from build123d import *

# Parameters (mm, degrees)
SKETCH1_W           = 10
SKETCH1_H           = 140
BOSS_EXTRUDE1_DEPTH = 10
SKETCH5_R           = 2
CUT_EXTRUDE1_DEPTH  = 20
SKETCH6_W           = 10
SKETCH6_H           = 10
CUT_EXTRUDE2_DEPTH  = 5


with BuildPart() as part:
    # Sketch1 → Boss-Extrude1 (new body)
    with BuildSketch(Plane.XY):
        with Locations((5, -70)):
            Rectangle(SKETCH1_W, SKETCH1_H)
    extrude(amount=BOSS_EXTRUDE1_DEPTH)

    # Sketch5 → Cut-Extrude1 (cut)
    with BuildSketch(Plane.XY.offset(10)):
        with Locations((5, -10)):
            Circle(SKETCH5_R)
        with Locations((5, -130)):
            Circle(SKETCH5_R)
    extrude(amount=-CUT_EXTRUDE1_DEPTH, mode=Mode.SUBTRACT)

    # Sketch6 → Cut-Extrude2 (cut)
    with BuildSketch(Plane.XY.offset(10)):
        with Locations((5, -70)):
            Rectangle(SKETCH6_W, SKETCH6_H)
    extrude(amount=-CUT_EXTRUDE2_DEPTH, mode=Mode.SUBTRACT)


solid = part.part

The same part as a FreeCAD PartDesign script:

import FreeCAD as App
import Part
import Sketcher

V = App.Vector
Q = App.Units.Quantity

doc = App.newDocument("Part")
body = doc.addObject("PartDesign::Body", "Body")

sketch1 = body.newObject("Sketcher::SketchObject", "Sketch")
sketch1.AttachmentSupport = (doc.getObject("XY_Plane"), [""])
sketch1.MapMode = "FlatFace"
sketch1.addGeometry([
    Part.LineSegment(V(0, 0, 0), V(0, -140, 0)),
    Part.LineSegment(V(0, -140, 0), V(10, -140, 0)),
    Part.LineSegment(V(10, -140, 0), V(10, 0, 0)),
    Part.LineSegment(V(10, 0, 0), V(0, 0, 0)),
], False)
sketch1.addConstraint([
    Sketcher.Constraint("Coincident", 0, 2, 1, 1),
    Sketcher.Constraint("Coincident", 1, 2, 2, 1),
    Sketcher.Constraint("Coincident", 2, 2, 3, 1),
    Sketcher.Constraint("Coincident", 3, 2, 0, 1),
    Sketcher.Constraint("Vertical", 0),
    Sketcher.Constraint("Horizontal", 1),
    Sketcher.Constraint("Vertical", 2),
    Sketcher.Constraint("Horizontal", 3),
    Sketcher.Constraint("Coincident", 3, 2, -1, 1),
    Sketcher.Constraint("DistanceX", 1, 1, 1, 2, Q("10 mm")),
    Sketcher.Constraint("DistanceY", 0, 2, 0, 1, Q("140 mm")),
])
pad1 = body.newObject("PartDesign::Pad", "Pad")
pad1.Profile = sketch1
pad1.Length = 10

sketch2 = body.newObject("Sketcher::SketchObject", "Sketch001")
sketch2.AttachmentSupport = (doc.getObject("XY_Plane"), [""])
sketch2.MapMode = "FlatFace"
sketch2.AttachmentOffset = App.Placement(V(0, 0, 10), App.Rotation())
sketch2.addGeometry([
    Part.Circle(V(5, -10, 0), V(0, 0, 1), 2),
    Part.Circle(V(5, -130, 0), V(0, 0, 1), 2),
], False)
sketch2.addConstraint([
    Sketcher.Constraint("Equal", 0, 1),
    Sketcher.Constraint("Vertical", 0, 3, 1, 3),
    Sketcher.Constraint("Diameter", 0, Q("4 mm")),
    Sketcher.Constraint("DistanceX", -1, 1, 0, 3, Q("5 mm")),
    Sketcher.Constraint("DistanceY", 0, 3, -1, 1, Q("10 mm")),
    Sketcher.Constraint("DistanceY", 1, 3, -1, 1, Q("130 mm")),
])
pocket1 = body.newObject("PartDesign::Pocket", "Pocket")
pocket1.Profile = sketch2
pocket1.Length = 20

sketch3 = body.newObject("Sketcher::SketchObject", "Sketch002")
sketch3.AttachmentSupport = (doc.getObject("XY_Plane"), [""])
sketch3.MapMode = "FlatFace"
sketch3.AttachmentOffset = App.Placement(V(0, 0, 10), App.Rotation())
sketch3.addGeometry([
    Part.LineSegment(V(0, -65, 0), V(0, -75, 0)),
    Part.LineSegment(V(0, -75, 0), V(10, -75, 0)),
    Part.LineSegment(V(10, -75, 0), V(10, -65, 0)),
    Part.LineSegment(V(10, -65, 0), V(0, -65, 0)),
], False)
sketch3.addConstraint([
    Sketcher.Constraint("Coincident", 0, 2, 1, 1),
    Sketcher.Constraint("Coincident", 1, 2, 2, 1),
    Sketcher.Constraint("Coincident", 2, 2, 3, 1),
    Sketcher.Constraint("Coincident", 3, 2, 0, 1),
    Sketcher.Constraint("Vertical", 0),
    Sketcher.Constraint("Horizontal", 1),
    Sketcher.Constraint("Vertical", 2),
    Sketcher.Constraint("Horizontal", 3),
    Sketcher.Constraint("PointOnObject", 0, 2, -2),
    Sketcher.Constraint("Equal", 3, 0),
    Sketcher.Constraint("DistanceX", 1, 1, 1, 2, Q("10 mm")),
    Sketcher.Constraint("DistanceY", 0, 2, -1, 1, Q("75 mm")),
])
pocket2 = body.newObject("PartDesign::Pocket", "Pocket001")
pocket2.Profile = sketch3
pocket2.Length = 5

doc.recompute()
